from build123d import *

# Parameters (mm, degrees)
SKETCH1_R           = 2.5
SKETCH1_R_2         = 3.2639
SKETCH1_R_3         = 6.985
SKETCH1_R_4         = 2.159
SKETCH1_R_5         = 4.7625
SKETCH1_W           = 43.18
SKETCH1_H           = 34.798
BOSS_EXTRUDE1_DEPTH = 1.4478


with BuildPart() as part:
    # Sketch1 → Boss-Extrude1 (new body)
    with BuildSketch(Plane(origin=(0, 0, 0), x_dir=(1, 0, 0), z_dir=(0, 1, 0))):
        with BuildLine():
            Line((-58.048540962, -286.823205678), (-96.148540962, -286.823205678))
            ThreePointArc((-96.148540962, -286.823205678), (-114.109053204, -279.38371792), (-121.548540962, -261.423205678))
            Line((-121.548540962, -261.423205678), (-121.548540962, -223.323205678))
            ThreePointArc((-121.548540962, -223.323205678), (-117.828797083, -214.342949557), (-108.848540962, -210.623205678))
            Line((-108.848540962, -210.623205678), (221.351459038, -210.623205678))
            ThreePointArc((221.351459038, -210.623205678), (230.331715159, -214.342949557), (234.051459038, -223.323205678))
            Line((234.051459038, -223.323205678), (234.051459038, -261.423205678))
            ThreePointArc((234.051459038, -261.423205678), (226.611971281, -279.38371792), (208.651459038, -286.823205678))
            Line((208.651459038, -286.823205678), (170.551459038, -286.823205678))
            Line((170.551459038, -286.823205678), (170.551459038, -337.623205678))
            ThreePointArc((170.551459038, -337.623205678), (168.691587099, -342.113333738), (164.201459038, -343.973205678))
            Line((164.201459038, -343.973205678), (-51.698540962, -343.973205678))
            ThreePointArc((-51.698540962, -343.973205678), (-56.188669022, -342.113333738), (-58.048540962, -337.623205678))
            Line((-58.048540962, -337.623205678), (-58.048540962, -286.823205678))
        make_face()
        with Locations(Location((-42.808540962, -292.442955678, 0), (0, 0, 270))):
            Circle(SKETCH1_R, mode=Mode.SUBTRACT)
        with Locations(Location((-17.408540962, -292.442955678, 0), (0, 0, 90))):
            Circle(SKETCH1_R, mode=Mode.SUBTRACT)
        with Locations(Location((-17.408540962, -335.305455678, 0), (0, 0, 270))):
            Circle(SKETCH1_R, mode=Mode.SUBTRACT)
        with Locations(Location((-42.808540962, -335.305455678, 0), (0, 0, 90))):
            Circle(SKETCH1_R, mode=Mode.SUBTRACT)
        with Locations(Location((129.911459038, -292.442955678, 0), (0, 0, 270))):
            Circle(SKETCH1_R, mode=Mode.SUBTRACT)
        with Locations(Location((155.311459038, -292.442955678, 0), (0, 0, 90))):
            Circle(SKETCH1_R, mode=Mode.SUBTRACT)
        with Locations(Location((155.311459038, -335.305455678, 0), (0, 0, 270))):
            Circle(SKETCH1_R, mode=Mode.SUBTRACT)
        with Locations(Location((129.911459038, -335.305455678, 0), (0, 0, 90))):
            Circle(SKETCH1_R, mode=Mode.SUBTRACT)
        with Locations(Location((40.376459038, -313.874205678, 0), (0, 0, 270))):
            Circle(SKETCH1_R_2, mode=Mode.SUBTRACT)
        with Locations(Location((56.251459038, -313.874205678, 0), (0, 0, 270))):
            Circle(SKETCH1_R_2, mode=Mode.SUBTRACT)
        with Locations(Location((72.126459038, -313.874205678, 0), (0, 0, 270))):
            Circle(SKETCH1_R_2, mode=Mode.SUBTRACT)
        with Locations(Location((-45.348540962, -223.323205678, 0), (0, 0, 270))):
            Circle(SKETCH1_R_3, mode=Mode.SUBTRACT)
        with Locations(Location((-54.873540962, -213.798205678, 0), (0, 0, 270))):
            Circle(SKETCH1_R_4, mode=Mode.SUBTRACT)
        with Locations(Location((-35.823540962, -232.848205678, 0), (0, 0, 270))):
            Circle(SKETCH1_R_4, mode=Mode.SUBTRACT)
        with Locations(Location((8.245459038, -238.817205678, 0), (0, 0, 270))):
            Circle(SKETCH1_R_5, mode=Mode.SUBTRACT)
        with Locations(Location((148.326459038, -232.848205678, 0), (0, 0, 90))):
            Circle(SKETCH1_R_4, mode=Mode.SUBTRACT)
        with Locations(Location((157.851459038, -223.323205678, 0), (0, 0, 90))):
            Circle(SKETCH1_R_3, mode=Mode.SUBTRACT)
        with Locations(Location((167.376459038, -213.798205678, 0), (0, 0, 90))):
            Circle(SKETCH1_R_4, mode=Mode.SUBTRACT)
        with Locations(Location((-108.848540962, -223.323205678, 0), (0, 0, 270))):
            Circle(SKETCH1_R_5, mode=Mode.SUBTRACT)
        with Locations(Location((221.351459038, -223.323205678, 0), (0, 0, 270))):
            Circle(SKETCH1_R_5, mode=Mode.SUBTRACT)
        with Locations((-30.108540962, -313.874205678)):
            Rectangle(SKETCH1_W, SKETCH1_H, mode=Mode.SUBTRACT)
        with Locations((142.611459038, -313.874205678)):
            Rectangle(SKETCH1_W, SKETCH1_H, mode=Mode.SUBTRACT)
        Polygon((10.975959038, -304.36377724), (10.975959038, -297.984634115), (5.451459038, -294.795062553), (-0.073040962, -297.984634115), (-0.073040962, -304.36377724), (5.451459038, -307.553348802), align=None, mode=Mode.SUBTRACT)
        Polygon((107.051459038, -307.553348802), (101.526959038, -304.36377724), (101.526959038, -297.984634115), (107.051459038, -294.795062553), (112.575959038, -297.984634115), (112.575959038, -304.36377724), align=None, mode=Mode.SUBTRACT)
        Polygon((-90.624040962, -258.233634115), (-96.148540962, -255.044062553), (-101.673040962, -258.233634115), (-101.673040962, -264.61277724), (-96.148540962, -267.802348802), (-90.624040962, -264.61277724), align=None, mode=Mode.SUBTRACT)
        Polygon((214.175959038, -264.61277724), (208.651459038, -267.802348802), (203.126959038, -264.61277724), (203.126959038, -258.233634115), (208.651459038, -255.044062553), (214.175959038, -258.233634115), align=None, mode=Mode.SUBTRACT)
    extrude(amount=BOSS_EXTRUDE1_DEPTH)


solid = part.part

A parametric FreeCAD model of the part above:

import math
import FreeCAD as App
import Part
import Sketcher
from FreeCAD import Vector
Q = App.Units.Quantity


def add_polygon(sketch, points):
    """Adds a closed chain of lines whose ends are joined by coincident constraints."""
    first, n = sketch.GeometryCount, len(points)
    for a, b in zip(points, points[1:] + points[:1]):
        sketch.addGeometry(Part.LineSegment(App.Vector(*a, 0), App.Vector(*b, 0)), False)
    for i in range(n):
        sketch.addConstraint(Sketcher.Constraint("Coincident", first + i, 2, first + (i + 1) % n, 1))

doc = App.newDocument("Part")
body = doc.addObject("PartDesign::Body", "Body")

sketch1 = body.newObject("Sketcher::SketchObject", "Sketch")
sketch1.AttachmentSupport = (doc.getObject("XZ_Plane"), [""])
sketch1.MapMode = "FlatFace"
sketch1.addGeometry(Part.LineSegment(Vector(-96.1, 286.8, 0), Vector(-58, 286.8, 0)), False)
sketch1.addGeometry(Part.LineSegment(Vector(-58, 286.8, 0), Vector(-58, 337.6, 0)), False)
sketch1.addGeometry(Part.ArcOfCircle(Part.Circle(Vector(-51.7, 337.6, 0), Vector(0, 0, 1), 6.4), math.radians(90), math.radians(180)), False)
sketch1.addGeometry(Part.LineSegment(Vector(-51.7, 344, 0), Vector(164.2, 344, 0)), False)
sketch1.addGeometry(Part.ArcOfCircle(Part.Circle(Vector(164.2, 337.6, 0), Vector(0, 0, 1), 6.3), math.radians(0), math.radians(90)), False)
sketch1.addGeometry(Part.LineSegment(Vector(170.6, 337.6, 0), Vector(170.6, 286.8, 0)), False)
sketch1.addGeometry(Part.LineSegment(Vector(170.6, 286.8, 0), Vector(208.7, 286.8, 0)), False)
sketch1.addGeometry(Part.ArcOfCircle(Part.Circle(Vector(208.7, 261.4, 0), Vector(0, 0, 1), 25.4), math.radians(0), math.radians(90)), False)
sketch1.addGeometry(Part.LineSegment(Vector(234.1, 261.4, 0), Vector(234.1, 223.3, 0)), False)
sketch1.addGeometry(Part.ArcOfCircle(Part.Circle(Vector(221.4, 223.3, 0), Vector(0, 0, 1), 12.7), math.radians(-90), math.radians(0)), False)
sketch1.addGeometry(Part.LineSegment(Vector(221.4, 210.6, 0), Vector(-108.8, 210.6, 0)), False)
sketch1.addGeometry(Part.ArcOfCircle(Part.Circle(Vector(-108.8, 223.3, 0), Vector(0, 0, 1), 12.7), math.radians(180), math.radians(270)), False)
sketch1.addGeometry(Part.LineSegment(Vector(-121.5, 223.3, 0), Vector(-121.5, 261.4, 0)), False)
sketch1.addGeometry(Part.ArcOfCircle(Part.Circle(Vector(-96.1, 261.4, 0), Vector(0, 0, 1), 25.4), math.radians(90), math.radians(180)), False)
sketch1.addGeometry(Part.Circle(Vector(155.3, 335.3, 0), Vector(0, 0, 1), 2.5), False)
add_polygon(sketch1, [(121, 331.3), (121, 296.5), (164.2, 296.5), (164.2, 331.3)])
sketch1.addGeometry(Part.Circle(Vector(129.9, 335.3, 0), Vector(0, 0, 1), 2.5), False)
sketch1.addGeometry(Part.Circle(Vector(72.1, 313.9, 0), Vector(0, 0, 1), 3.3), False)
sketch1.addGeometry(Part.Circle(Vector(56.3, 313.9, 0), Vector(0, 0, 1), 3.3), False)
sketch1.addGeometry(Part.Circle(Vector(155.3, 292.4, 0), Vector(0, 0, 1), 2.5), False)
add_polygon(sketch1, [(107.1, 307.6), (101.5, 304.4), (101.5, 298), (107.1, 294.8), (112.6, 298), (112.6, 304.4)])
sketch1.addGeometry(Part.Circle(Vector(129.9, 292.4, 0), Vector(0, 0, 1), 2.5), False)
sketch1.addGeometry(Part.Circle(Vector(-17.4, 335.3, 0), Vector(0, 0, 1), 2.5), False)
sketch1.addGeometry(Part.Circle(Vector(40.4, 313.9, 0), Vector(0, 0, 1), 3.3), False)
sketch1.addGeometry(Part.Circle(Vector(-42.8, 335.3, 0), Vector(0, 0, 1), 2.5), False)
add_polygon(sketch1, [(-51.7, 331.3), (-51.7, 296.5), (-8.5, 296.5), (-8.5, 331.3)])
add_polygon(sketch1, [(11, 304.4), (5.5, 307.6), (-0.1, 304.4), (-0.1, 298), (5.5, 294.8), (11, 298)])
sketch1.addGeometry(Part.Circle(Vector(-17.4, 292.4, 0), Vector(0, 0, 1), 2.5), False)
sketch1.addGeometry(Part.Circle(Vector(-42.8, 292.4, 0), Vector(0, 0, 1), 2.5), False)
add_polygon(sketch1, [(214.2, 264.6), (208.7, 267.8), (203.1, 264.6), (203.1, 258.2), (208.7, 255), (214.2, 258.2)])
sketch1.addGeometry(Part.Circle(Vector(148.3, 232.8, 0), Vector(0, 0, 1), 2.2), False)
sketch1.addGeometry(Part.Circle(Vector(221.4, 223.3, 0), Vector(0, 0, 1), 4.8), False)
sketch1.addGeometry(Part.Circle(Vector(157.9, 223.3, 0), Vector(0, 0, 1), 7), False)
sketch1.addGeometry(Part.Circle(Vector(167.4, 213.8, 0), Vector(0, 0, 1), 2.2), False)
add_polygon(sketch1, [(-90.6, 258.2), (-90.6, 264.6), (-96.1, 267.8), (-101.7, 264.6), (-101.7, 258.2), (-96.1, 255)])
sketch1.addGeometry(Part.Circle(Vector(8.2, 238.8, 0), Vector(0, 0, 1), 4.8), False)
sketch1.addGeometry(Part.Circle(Vector(-35.8, 232.8, 0), Vector(0, 0, 1), 2.2), False)
sketch1.addGeometry(Part.Circle(Vector(-45.3, 223.3, 0), Vector(0, 0, 1), 7), False)
sketch1.addGeometry(Part.Circle(Vector(-54.9, 213.8, 0), Vector(0, 0, 1), 2.2), False)
sketch1.addGeometry(Part.Circle(Vector(-108.8, 223.3, 0), Vector(0, 0, 1), 4.8), False)
sketch1.addConstraint([
    Sketcher.Constraint("Coincident", 0, 2, 1, 1),
    Sketcher.Constraint("Tangent", 1, 2, 2, 2),
    Sketcher.Constraint("Tangent", 2, 1, 3, 1),
    Sketcher.Constraint("Tangent", 3, 2, 4, 2),
    Sketcher.Constraint("Tangent", 4, 1, 5, 1),
    Sketcher.Constraint("Coincident", 5, 2, 6, 1),
    Sketcher.Constraint("Tangent", 6, 2, 7, 2),
    Sketcher.Constraint("Tangent", 7, 1, 8, 1),
    Sketcher.Constraint("Tangent", 8, 2, 9, 2),
    Sketcher.Constraint("Tangent", 9, 1, 10, 1),
    Sketcher.Constraint("Tangent", 10, 2, 11, 2),
    Sketcher.Constraint("Tangent", 11, 1, 12, 1),
    Sketcher.Constraint("Tangent", 12, 2, 13, 2),
    Sketcher.Constraint("Tangent", 13, 1, 0, 1),
    Sketcher.Constraint("Horizontal", 0),
    Sketcher.Constraint("Vertical", 1),
    Sketcher.Constraint("Horizontal", 3),
    Sketcher.Constraint("Vertical", 5),
    Sketcher.Constraint("Horizontal", 6),
    Sketcher.Constraint("Vertical", 8),
    Sketcher.Constraint("Horizontal", 10),
    Sketcher.Constraint("Vertical", 12),
    Sketcher.Constraint("Vertical", 15),
    Sketcher.Constraint("Horizontal", 16),
    Sketcher.Constraint("Vertical", 17),
    Sketcher.Constraint("Horizontal", 18),
    Sketcher.Constraint("Vertical", 24),
    Sketcher.Constraint("Vertical", 27),
    Sketcher.Constraint("Vertical", 33),
    Sketcher.Constraint("Horizontal", 34),
    Sketcher.Constraint("Vertical", 35),
    Sketcher.Constraint("Horizontal", 36),
    Sketcher.Constraint("Vertical", 39),
    Sketcher.Constraint("Vertical", 42),
    Sketcher.Constraint("Vertical", 47),
    Sketcher.Constraint("Vertical", 50),
    Sketcher.Constraint("Vertical", 55),
    Sketcher.Constraint("Vertical", 58),
    Sketcher.Constraint("Coincident", 52, 3, 9, 3),
    Sketcher.Constraint("Coincident", 65, 3, 11, 3),
    Sketcher.Constraint("Equal", 2, 4),
    Sketcher.Constraint("Equal", 9, 11),
    Sketcher.Constraint("Equal", 7, 13),
    Sketcher.Constraint("Equal", 14, 19),
    Sketcher.Constraint("Equal", 20, 21),
    Sketcher.Constraint("Equal", 19, 22),
    Sketcher.Constraint("Equal", 22, 29),
    Sketcher.Constraint("Equal", 29, 30),
    Sketcher.Constraint("Equal", 21, 31),
    Sketcher.Constraint("Equal", 30, 32),
    Sketcher.Constraint("Equal", 32, 43),
    Sketcher.Constraint("Equal", 43, 44),
    Sketcher.Constraint("Equal", 51, 54),
    Sketcher.Constraint("Equal", 52, 61),
    Sketcher.Constraint("Equal", 54, 62),
    Sketcher.Constraint("Equal", 53, 63),
    Sketcher.Constraint("Equal", 62, 64),
    Sketcher.Constraint("Equal", 61, 65),
    Sketcher.Constraint("Parallel", 23, 26),
    Sketcher.Constraint("Parallel", 25, 28),
    Sketcher.Constraint("Parallel", 28, 37),
    Sketcher.Constraint("Parallel", 26, 38),
    Sketcher.Constraint("Parallel", 37, 40),
    Sketcher.Constraint("Parallel", 38, 41),
    Sketcher.Constraint("Parallel", 40, 45),
    Sketcher.Constraint("Parallel", 41, 46),
    Sketcher.Constraint("Parallel", 45, 48),
    Sketcher.Constraint("Parallel", 46, 49),
    Sketcher.Constraint("Parallel", 48, 56),
    Sketcher.Constraint("Parallel", 49, 57),
    Sketcher.Constraint("Parallel", 56, 59),
    Sketcher.Constraint("Parallel", 57, 60),
    Sketcher.Constraint("Horizontal", 7, 3, 13, 3),
    Sketcher.Constraint("Horizontal", 14, 3, 19, 3),
    Sketcher.Constraint("Horizontal", 20, 3, 21, 3),
    Sketcher.Constraint("Horizontal", 22, 3, 29, 3),
    Sketcher.Constraint("Horizontal", 19, 3, 30, 3),
    Sketcher.Constraint("Horizontal", 21, 3, 31, 3),
    Sketcher.Constraint("Horizontal", 30, 3, 32, 3),
    Sketcher.Constraint("Horizontal", 29, 3, 43, 3),
    Sketcher.Constraint("Horizontal", 43, 3, 44, 3),
    Sketcher.Constraint("Horizontal", 52, 3, 53, 3),
    Sketcher.Constraint("Horizontal", 51, 3, 62, 3),
    Sketcher.Constraint("Horizontal", 53, 3, 63, 3),
    Sketcher.Constraint("Horizontal", 54, 3, 64, 3),
    Sketcher.Constraint("Horizontal", 24, 2, 26, 2),
    Sketcher.Constraint("Horizontal", 23, 2, 27, 2),
    Sketcher.Constraint("Horizontal", 16, 2, 33, 2),
    Sketcher.Constraint("Horizontal", 18, 2, 35, 2),
    Sketcher.Constraint("Horizontal", 28, 2, 37, 2),
    Sketcher.Constraint("Horizontal", 27, 2, 38, 2),
    Sketcher.Constraint("Horizontal", 26, 2, 39, 2),
    Sketcher.Constraint("Horizontal", 25, 2, 40, 2),
    Sketcher.Constraint("Horizontal", 39, 2, 41, 2),
    Sketcher.Constraint("Horizontal", 47, 2, 49, 2),
    Sketcher.Constraint("Horizontal", 46, 2, 50, 2),
    Sketcher.Constraint("Horizontal", 50, 2, 55, 2),
    Sketcher.Constraint("Horizontal", 45, 2, 56, 2),
    Sketcher.Constraint("Horizontal", 55, 2, 57, 2),
    Sketcher.Constraint("Horizontal", 49, 2, 58, 2),
    Sketcher.Constraint("Horizontal", 48, 2, 59, 2),
    Sketcher.Constraint("Vertical", 14, 3, 22, 3),
    Sketcher.Constraint("Vertical", 19, 3, 29, 3),
    Sketcher.Constraint("Vertical", 30, 3, 43, 3),
    Sketcher.Constraint("Vertical", 32, 3, 44, 3),
    Sketcher.Constraint("Vertical", 3, 2, 16, 2),
    Sketcher.Constraint("Vertical", 25, 2, 28, 2),
    Sketcher.Constraint("Vertical", 2, 1, 33, 2),
    Sketcher.Constraint("Vertical", 6, 2, 45, 2),
    Sketcher.Constraint("Vertical", 13, 1, 56, 2),
    Sketcher.Constraint("Equal", 0, 6),
    Sketcher.Constraint("Equal", 18, 34),
    Sketcher.Constraint("Equal", 6, 8),
    Sketcher.Constraint("Equal", 42, 47),
    Sketcher.Constraint("Equal", 41, 45),
    Sketcher.Constraint("Radius", 7, Q("1 in")),
    Sketcher.Constraint("Radius", 9, Q("0.5 in")),
    Sketcher.Constraint("Diameter", 51, Q("0.17 in")),
    Sketcher.Constraint("Diameter", 53, Q("0.55 in")),
    Sketcher.Constraint("DistanceX", 10, 2, 10, 1, Q("13 in")),
    Sketcher.Constraint("DistanceY", 1, 1, 1, 2, Q("2 in")),
    Sketcher.Constraint("Radius", 2, Q("0.25 in")),
    Sketcher.Constraint("Diameter", 20, Q("0.257 in")),
    Sketcher.Constraint("Diameter", 52, Q("0.375 in")),
    Sketcher.Constraint("DistanceX", 0, 1, 0, 2, Q("1.5 in")),
    Sketcher.Constraint("DistanceX", 16, 1, 16, 2, Q("1.7 in")),
    Sketcher.Constraint("Angle", 23, Q("-150 deg")),
    Sketcher.Constraint("DistanceY", 15, 2, 15, 1, Q("1.37 in")),
    Sketcher.Constraint("Diameter", 14, Q("5 mm")),
    Sketcher.Constraint("DistanceY", 24, 2, 24, 1, Q("6.379143 mm")),
    Sketcher.Constraint("DistanceX", 2, 3, -1, 1, Q("51.698541 mm")),
    Sketcher.Constraint("DistanceX", -1, 1, 14, 3, Q("155.311459 mm")),
    Sketcher.Constraint("DistanceX", -1, 1, 19, 3, Q("129.911459 mm")),
    Sketcher.Constraint("DistanceX", -1, 1, 20, 3, Q("72.126459 mm")),
    Sketcher.Constraint("DistanceX", -1, 1, 21, 3, Q("56.251459 mm")),
    Sketcher.Constraint("DistanceX", 30, 3, -1, 1, Q("17.408541 mm")),
    Sketcher.Constraint("DistanceX", -1, 1, 31, 3, Q("40.376459 mm")),
    Sketcher.Constraint("DistanceX", 32, 3, -1, 1, Q("42.808541 mm")),
    Sketcher.Constraint("DistanceX", -1, 1, 51, 3, Q("148.326459 mm")),
    Sketcher.Constraint("DistanceX", -1, 1, 53, 3, Q("157.851459 mm")),
    Sketcher.Constraint("DistanceX", -1, 1, 54, 3, Q("167.376459 mm")),
    Sketcher.Constraint("DistanceX", -1, 1, 61, 3, Q("8.245459 mm")),
    Sketcher.Constraint("DistanceX", 62, 3, -1, 1, Q("35.823541 mm")),
    Sketcher.Constraint("DistanceX", 63, 3, -1, 1, Q("45.348541 mm")),
    Sketcher.Constraint("DistanceX", 64, 3, -1, 1, Q("54.873541 mm")),
    Sketcher.Constraint("DistanceX", -1, 1, 23, 2, Q("101.526959 mm")),
    Sketcher.Constraint("DistanceX", -1, 1, 25, 2, Q("107.051459 mm")),
    Sketcher.Constraint("DistanceY", -1, 1, 28, 2, Q("307.553349 mm")),
    Sketcher.Constraint("DistanceX", -1, 1, 37, 2, Q("5.451459 mm")),
    Sketcher.Constraint("DistanceY", -1, 1, 45, 2, Q("267.802349 mm")),
    Sketcher.Constraint("DistanceY", -1, 1, 2, 3, Q("337.623206 mm")),
    Sketcher.Constraint("DistanceY", -1, 1, 14, 3, Q("335.305456 mm")),
    Sketcher.Constraint("DistanceY", -1, 1, 20, 3, Q("313.874206 mm")),
    Sketcher.Constraint("DistanceY", -1, 1, 22, 3, Q("292.442956 mm")),
    Sketcher.Constraint("DistanceY", -1, 1, 51, 3, Q("232.848206 mm")),
    Sketcher.Constraint("DistanceY", -1, 1, 54, 3, Q("213.798206 mm")),
    Sketcher.Constraint("DistanceY", -1, 1, 61, 3, Q("238.817206 mm")),
    Sketcher.Constraint("DistanceY", -1, 1, 15, 2, Q("296.475206 mm")),
])
pad1 = body.newObject("PartDesign::Pad", "Pad")
pad1.Profile = sketch1
pad1.Length = Q("0.057 in")
pad1.Reversed = True

doc.recompute()
